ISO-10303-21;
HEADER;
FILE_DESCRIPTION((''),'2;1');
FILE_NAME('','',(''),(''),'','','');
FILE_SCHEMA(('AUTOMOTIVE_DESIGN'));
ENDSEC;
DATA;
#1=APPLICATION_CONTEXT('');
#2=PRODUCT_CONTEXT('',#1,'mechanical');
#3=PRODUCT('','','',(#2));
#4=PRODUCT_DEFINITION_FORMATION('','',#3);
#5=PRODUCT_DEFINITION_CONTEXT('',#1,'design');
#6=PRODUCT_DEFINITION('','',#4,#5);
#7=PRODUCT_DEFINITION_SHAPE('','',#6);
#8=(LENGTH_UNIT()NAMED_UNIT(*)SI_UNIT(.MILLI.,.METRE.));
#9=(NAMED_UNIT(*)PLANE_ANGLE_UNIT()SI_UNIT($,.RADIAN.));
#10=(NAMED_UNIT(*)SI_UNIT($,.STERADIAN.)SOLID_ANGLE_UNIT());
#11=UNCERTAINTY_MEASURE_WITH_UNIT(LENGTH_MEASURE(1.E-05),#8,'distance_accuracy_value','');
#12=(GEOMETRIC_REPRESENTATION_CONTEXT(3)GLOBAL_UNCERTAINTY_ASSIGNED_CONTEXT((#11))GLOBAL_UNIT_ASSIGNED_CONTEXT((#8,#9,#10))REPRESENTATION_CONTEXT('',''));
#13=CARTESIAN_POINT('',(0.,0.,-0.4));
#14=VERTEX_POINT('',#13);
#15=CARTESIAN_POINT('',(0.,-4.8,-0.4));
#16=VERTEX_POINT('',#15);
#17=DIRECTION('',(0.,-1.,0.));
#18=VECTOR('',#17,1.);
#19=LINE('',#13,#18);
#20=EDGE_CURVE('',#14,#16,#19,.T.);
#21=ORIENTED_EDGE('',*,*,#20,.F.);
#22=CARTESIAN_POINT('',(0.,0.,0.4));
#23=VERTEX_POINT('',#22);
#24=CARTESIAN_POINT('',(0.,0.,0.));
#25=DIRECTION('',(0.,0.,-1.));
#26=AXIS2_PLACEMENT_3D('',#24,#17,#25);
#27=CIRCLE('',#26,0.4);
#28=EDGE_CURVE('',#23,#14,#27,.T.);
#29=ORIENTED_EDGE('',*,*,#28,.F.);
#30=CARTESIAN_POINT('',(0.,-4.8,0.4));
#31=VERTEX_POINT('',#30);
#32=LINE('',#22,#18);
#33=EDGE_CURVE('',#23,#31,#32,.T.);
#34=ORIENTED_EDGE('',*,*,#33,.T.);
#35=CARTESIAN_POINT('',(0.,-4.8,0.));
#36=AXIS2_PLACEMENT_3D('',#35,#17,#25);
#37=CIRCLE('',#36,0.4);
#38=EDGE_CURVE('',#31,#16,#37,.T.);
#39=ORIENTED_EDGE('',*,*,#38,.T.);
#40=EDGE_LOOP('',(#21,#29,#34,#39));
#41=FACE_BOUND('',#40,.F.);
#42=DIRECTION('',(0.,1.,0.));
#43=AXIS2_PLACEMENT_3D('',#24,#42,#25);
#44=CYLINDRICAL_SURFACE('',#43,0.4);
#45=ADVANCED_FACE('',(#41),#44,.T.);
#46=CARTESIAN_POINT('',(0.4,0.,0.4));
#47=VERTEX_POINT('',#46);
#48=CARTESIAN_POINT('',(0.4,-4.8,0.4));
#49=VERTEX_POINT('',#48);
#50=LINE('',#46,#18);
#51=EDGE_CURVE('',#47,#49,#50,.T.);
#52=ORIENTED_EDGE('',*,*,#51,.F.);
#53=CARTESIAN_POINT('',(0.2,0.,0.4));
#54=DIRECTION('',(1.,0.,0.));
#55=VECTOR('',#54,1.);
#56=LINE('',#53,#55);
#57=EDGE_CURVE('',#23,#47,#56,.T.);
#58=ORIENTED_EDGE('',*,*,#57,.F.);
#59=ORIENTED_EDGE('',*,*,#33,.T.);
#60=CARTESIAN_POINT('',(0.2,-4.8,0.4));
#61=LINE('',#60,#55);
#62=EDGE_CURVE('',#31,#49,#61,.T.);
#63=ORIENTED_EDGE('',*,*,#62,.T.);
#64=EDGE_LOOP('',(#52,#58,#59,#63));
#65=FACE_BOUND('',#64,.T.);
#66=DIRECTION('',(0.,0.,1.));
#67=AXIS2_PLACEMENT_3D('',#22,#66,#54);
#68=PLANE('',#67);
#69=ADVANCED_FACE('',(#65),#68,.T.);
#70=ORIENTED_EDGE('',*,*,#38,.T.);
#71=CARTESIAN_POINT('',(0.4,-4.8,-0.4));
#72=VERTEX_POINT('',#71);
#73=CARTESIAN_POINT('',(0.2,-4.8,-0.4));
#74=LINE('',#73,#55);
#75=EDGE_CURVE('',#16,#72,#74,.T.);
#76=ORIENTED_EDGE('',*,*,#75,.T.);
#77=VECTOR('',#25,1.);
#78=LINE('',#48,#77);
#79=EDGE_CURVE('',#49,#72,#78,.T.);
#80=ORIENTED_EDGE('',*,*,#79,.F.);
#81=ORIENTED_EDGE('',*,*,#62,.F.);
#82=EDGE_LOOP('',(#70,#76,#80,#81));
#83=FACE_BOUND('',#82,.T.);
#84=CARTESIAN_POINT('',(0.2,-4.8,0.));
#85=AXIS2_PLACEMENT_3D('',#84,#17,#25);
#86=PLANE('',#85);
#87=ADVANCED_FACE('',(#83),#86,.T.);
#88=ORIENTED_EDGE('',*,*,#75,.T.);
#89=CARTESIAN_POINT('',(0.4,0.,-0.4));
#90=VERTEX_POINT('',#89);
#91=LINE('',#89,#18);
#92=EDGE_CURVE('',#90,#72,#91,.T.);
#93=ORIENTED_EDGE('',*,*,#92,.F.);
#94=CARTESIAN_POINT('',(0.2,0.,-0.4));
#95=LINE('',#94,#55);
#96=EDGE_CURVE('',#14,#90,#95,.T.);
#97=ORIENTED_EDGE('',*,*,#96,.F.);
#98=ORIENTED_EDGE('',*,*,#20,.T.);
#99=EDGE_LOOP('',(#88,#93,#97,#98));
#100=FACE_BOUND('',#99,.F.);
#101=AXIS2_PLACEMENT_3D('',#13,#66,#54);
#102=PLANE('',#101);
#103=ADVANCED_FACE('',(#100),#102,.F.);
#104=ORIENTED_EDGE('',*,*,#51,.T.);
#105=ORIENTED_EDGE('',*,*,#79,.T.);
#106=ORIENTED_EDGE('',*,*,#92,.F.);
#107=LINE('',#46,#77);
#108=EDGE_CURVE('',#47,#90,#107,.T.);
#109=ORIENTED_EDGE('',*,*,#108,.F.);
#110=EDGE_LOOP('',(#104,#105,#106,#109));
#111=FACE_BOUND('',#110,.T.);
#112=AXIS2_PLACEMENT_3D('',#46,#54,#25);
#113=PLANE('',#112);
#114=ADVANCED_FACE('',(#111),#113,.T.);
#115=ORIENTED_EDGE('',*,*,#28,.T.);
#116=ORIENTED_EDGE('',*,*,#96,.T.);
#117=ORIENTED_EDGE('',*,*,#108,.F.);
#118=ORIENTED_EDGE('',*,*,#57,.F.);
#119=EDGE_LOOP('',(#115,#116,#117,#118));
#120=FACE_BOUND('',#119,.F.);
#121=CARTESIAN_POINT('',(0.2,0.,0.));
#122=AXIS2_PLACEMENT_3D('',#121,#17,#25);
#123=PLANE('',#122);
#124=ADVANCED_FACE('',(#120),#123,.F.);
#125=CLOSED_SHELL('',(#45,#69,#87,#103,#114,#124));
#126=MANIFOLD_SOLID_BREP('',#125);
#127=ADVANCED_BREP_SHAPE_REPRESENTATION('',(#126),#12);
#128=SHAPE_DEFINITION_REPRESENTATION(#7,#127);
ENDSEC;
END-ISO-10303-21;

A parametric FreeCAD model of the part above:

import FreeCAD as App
import Part
import Sketcher
from FreeCAD import Vector
Q = App.Units.Quantity


def add_polygon(sketch, points):
    """Adds a closed chain of lines whose ends are joined by coincident constraints."""
    first, n = sketch.GeometryCount, len(points)
    for a, b in zip(points, points[1:] + points[:1]):
        sketch.addGeometry(Part.LineSegment(App.Vector(*a, 0), App.Vector(*b, 0)), False)
    for i in range(n):
        sketch.addConstraint(Sketcher.Constraint("Coincident", first + i, 2, first + (i + 1) % n, 1))

doc = App.newDocument("Part")
body = doc.addObject("PartDesign::Body", "Body")

sketch1 = doc.addObject("Sketcher::SketchObject", "Sketch")
body.addObject(sketch1)
sketch1.AttachmentSupport = (doc.XY_Plane, [""])
sketch1.MapMode = "FlatFace"
sketch1.addGeometry(Part.Circle(Vector(0, 0, 0), Vector(0, 0, 1), 0.4), False)
sketch1.addConstraint([
    Sketcher.Constraint("Coincident", 0, 3, -1, 1),
    Sketcher.Constraint("Diameter", 0, Q("0.8 mm")),
])
pad1 = doc.addObject("PartDesign::Pad", "Pad")
body.addObject(pad1)
pad1.Profile = sketch1
pad1.Length = 4.8
body2 = doc.addObject("PartDesign::Body", "Body001")

sketch2 = doc.addObject("Sketcher::SketchObject", "Sketch001")
body2.addObject(sketch2)
sketch2.AttachmentSupport = (doc.getObject("XY_Plane001"), [""])
sketch2.MapMode = "FlatFace"
add_polygon(sketch2, [(-0.4, 0.4), (-0.4, 0), (0.4, 0), (0.4, 0.4)])
sketch2.addConstraint([
    Sketcher.Constraint("Vertical", 0),
    Sketcher.Constraint("Horizontal", 1),
    Sketcher.Constraint("Vertical", 2),
    Sketcher.Constraint("Horizontal", 3),
    Sketcher.Constraint("Symmetric", 0, 2, 1, 2, -1, 1),
    Sketcher.Constraint("DistanceX", 1, 1, 1, 2, Q("0.8 mm")),
    Sketcher.Constraint("DistanceY", 0, 2, 0, 1, Q("0.4 mm")),
])
pad2 = doc.addObject("PartDesign::Pad", "Pad001")
body2.addObject(pad2)
pad2.Profile = sketch2
pad2.Length = 4.8
doc.recompute()

boolean = doc.addObject("PartDesign::Boolean", "Boolean")
body2.addObject(boolean)
boolean.Type = "Fuse"
boolean.addObjects([body])
body3 = doc.addObject("PartDesign::Body", "Body002")
doc.recompute()

body2.Placement = App.Placement(Vector(0, 0, 0), App.Rotation(Vector(0, 1, 0), 90))
boolean2 = doc.addObject("PartDesign::Boolean", "Boolean001")
body3.addObject(boolean2)
boolean2.Type = "Fuse"
boolean2.addObjects([body2])
body4 = doc.addObject("PartDesign::Body", "Body003")
doc.recompute()

body3.Placement = App.Placement(Vector(0, 0, 0), App.Rotation(Vector(0, 0, 1), 270))
boolean3 = doc.addObject("PartDesign::Boolean", "Boolean002")
body4.addObject(boolean3)
boolean3.Type = "Fuse"
boolean3.addObjects([body3])

doc.recompute()
